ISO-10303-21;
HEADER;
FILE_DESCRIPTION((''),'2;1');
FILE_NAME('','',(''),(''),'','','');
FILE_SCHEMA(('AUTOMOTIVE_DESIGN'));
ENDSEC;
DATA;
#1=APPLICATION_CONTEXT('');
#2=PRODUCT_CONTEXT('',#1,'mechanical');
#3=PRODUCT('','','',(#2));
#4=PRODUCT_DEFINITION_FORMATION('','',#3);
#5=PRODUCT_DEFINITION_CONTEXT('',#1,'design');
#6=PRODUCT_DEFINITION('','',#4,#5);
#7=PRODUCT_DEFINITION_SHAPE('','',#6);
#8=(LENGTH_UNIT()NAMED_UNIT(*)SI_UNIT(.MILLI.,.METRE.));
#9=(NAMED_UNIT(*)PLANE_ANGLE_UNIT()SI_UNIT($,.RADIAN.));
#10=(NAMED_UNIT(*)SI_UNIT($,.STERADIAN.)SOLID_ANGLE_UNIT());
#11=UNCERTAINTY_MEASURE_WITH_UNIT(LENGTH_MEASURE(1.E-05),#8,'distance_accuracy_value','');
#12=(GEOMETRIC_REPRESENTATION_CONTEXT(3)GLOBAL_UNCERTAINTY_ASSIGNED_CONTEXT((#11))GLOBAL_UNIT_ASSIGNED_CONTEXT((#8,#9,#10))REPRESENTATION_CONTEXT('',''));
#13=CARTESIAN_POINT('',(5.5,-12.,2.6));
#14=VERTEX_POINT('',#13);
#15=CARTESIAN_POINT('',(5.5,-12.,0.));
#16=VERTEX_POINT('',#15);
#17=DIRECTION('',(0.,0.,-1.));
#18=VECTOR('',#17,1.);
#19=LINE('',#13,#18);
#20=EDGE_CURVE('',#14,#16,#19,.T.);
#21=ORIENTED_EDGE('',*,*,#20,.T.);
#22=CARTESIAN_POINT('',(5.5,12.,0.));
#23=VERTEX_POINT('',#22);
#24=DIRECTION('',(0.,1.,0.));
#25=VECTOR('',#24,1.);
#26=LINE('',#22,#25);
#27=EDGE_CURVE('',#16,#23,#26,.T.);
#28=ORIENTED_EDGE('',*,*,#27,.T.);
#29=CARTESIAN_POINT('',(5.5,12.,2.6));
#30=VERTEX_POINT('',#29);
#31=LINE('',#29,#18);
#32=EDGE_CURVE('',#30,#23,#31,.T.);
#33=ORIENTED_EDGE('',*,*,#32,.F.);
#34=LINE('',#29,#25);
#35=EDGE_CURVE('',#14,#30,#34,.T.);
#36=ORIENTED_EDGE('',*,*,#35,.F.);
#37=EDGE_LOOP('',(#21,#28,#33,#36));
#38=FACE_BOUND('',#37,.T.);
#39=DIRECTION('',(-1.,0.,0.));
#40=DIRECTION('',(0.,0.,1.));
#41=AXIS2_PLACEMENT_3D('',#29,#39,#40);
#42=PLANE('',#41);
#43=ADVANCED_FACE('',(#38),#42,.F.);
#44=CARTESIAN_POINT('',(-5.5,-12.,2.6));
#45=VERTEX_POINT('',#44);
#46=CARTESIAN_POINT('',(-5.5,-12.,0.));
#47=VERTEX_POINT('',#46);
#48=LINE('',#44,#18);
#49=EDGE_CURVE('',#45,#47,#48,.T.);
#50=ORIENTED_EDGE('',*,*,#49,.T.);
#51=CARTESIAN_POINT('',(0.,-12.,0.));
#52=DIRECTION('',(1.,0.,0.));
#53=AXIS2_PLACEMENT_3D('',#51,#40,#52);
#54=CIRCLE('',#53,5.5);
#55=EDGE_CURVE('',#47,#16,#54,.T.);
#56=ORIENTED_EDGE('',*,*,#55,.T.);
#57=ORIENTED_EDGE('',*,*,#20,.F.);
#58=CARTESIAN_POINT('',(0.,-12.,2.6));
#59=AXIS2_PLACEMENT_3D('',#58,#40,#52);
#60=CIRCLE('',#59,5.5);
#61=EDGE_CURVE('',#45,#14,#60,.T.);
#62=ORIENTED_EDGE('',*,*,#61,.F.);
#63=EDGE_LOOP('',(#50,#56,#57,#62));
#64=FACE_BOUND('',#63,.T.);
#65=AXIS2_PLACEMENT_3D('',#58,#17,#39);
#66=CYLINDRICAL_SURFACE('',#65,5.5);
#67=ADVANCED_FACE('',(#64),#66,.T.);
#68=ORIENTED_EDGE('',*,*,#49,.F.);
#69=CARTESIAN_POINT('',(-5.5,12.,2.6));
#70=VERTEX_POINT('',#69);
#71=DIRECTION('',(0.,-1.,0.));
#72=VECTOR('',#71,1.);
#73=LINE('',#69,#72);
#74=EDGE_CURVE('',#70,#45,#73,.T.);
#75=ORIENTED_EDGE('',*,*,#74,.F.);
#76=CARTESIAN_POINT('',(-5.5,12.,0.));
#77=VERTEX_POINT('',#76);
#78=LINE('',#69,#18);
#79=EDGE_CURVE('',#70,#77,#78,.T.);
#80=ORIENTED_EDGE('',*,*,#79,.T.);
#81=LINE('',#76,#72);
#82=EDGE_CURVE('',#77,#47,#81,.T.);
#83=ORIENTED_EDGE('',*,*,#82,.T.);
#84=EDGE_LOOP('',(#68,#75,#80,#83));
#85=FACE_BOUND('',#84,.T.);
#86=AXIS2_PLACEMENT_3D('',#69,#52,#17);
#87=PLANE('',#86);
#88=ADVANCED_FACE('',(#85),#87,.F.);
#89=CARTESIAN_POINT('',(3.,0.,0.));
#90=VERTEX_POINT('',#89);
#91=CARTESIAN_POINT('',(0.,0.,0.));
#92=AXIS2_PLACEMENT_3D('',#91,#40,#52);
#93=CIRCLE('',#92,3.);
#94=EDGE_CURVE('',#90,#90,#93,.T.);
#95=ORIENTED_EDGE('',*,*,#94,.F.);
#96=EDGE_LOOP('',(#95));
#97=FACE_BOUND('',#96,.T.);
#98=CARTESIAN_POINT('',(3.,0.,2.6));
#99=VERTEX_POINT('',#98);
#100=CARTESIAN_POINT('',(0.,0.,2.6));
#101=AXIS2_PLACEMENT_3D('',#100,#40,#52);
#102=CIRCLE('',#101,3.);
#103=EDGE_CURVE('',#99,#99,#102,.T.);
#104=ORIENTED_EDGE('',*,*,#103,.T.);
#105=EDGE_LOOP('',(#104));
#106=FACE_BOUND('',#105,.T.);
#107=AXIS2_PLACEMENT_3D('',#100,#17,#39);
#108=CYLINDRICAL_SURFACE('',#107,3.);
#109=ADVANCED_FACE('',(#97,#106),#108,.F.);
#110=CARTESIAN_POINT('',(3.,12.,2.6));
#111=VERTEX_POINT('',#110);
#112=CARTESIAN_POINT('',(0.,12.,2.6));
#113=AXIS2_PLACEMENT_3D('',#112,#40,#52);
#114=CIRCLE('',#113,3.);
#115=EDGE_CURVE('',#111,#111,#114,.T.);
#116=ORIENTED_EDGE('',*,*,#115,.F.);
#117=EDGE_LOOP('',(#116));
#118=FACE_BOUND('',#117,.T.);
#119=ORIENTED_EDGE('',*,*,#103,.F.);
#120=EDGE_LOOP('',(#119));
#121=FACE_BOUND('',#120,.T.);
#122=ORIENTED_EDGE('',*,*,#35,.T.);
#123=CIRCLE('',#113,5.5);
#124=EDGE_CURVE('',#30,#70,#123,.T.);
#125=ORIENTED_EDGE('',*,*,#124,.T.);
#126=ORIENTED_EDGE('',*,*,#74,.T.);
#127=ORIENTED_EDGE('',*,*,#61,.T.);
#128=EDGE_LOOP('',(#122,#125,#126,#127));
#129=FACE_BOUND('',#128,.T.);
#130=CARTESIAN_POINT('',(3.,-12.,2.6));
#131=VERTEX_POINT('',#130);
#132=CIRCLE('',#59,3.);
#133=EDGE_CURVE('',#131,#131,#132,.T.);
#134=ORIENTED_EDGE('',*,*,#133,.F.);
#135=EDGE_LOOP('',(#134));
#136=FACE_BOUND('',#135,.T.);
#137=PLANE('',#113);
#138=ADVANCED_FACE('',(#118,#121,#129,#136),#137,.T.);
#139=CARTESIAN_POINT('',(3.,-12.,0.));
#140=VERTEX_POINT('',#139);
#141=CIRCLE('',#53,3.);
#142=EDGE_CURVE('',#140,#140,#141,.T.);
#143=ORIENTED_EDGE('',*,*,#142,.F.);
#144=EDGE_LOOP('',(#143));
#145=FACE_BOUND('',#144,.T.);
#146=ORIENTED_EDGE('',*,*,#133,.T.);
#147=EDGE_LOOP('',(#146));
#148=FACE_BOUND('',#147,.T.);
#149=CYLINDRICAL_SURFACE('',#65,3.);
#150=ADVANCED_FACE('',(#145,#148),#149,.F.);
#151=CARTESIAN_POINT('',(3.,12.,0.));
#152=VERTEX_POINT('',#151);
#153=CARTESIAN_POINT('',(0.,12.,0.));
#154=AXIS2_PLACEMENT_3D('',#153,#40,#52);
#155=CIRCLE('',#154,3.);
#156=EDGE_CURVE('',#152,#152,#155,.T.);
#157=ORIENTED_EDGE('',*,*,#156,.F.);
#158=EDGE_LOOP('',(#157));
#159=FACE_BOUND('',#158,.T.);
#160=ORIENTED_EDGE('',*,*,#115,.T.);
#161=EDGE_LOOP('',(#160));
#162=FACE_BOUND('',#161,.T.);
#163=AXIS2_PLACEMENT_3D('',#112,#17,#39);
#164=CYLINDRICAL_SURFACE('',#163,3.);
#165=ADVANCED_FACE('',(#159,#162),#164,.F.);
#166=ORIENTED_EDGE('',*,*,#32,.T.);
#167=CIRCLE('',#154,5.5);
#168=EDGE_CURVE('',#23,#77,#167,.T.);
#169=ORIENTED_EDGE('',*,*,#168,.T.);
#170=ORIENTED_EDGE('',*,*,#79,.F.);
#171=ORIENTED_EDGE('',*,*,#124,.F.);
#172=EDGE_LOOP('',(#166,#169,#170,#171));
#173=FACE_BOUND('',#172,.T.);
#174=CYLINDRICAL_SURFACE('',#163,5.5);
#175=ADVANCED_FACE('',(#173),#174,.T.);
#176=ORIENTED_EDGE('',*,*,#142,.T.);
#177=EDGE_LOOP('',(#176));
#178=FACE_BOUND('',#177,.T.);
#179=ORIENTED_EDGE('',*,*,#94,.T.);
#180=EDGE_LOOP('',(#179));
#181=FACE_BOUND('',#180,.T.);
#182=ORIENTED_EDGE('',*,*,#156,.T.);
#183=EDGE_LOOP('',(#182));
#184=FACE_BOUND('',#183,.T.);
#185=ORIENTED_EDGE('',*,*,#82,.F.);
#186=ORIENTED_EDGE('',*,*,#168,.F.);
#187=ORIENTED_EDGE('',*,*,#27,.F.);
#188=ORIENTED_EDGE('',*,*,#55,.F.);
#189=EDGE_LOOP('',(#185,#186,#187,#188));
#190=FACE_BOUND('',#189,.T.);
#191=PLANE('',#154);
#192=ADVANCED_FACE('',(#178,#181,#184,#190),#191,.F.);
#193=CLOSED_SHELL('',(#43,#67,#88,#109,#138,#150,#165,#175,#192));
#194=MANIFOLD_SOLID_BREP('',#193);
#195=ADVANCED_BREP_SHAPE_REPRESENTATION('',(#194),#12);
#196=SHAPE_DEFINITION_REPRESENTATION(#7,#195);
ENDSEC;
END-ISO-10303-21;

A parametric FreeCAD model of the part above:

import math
import FreeCAD as App
import Part
import Sketcher

V = App.Vector

doc = App.newDocument("Part")
params = doc.addObject("Spreadsheet::Sheet", "Params")
for row, (alias, value) in enumerate([
    ("sketch1_diameter", "6 mm"),
    ("sketch1_radius", "5.5 mm"),
    ("sketch1_height", "24 mm"),
    ("pad1_length", "2.6 mm"),
], start=1):
    params.set(f"A{row}", alias)
    params.set(f"B{row}", "=" + value)
    params.setAlias(f"B{row}", alias)

body = doc.addObject("PartDesign::Body", "Body")

# Sketch on XY plane
sketch1 = body.newObject("Sketcher::SketchObject", "Sketch")
sketch1.AttachmentSupport = (doc.getObject("XY_Plane"), [""])
sketch1.MapMode = "FlatFace"
sketch1.addGeometry(Part.LineSegment(V(5.5, -12, 0), V(5.5, 12, 0)), False)
sketch1.addGeometry(Part.ArcOfCircle(Part.Circle(V(0, 12, 0), V(0, 0, 1), 5.5), math.radians(0), math.radians(180)), False)
sketch1.addGeometry(Part.LineSegment(V(-5.5, 12, 0), V(-5.5, -12, 0)), False)
sketch1.addGeometry(Part.ArcOfCircle(Part.Circle(V(0, -12, 0), V(0, 0, 1), 5.5), math.radians(180), math.radians(360)), False)
sketch1.addGeometry(Part.Circle(V(0, -12, 0), V(0, 0, 1), 3), False)
sketch1.addGeometry(Part.Circle(V(0, 0, 0), V(0, 0, 1), 3), False)
sketch1.addGeometry(Part.Circle(V(0, 12, 0), V(0, 0, 1), 3), False)
sketch1.addConstraint(Sketcher.Constraint("Tangent", 0, 2, 1, 1))
sketch1.addConstraint(Sketcher.Constraint("Tangent", 1, 2, 2, 1))
sketch1.addConstraint(Sketcher.Constraint("Tangent", 2, 2, 3, 1))
sketch1.addConstraint(Sketcher.Constraint("Tangent", 3, 2, 0, 1))
sketch1.addConstraint(Sketcher.Constraint("Vertical", 0))
sketch1.addConstraint(Sketcher.Constraint("Vertical", 2))
sketch1.addConstraint(Sketcher.Constraint("Coincident", 5, 3, -1, 1))
sketch1.addConstraint(Sketcher.Constraint("Coincident", 4, 3, 3, 3))
sketch1.addConstraint(Sketcher.Constraint("Coincident", 6, 3, 1, 3))
sketch1.addConstraint(Sketcher.Constraint("Equal", 4, 5))
sketch1.addConstraint(Sketcher.Constraint("Equal", 5, 6))
sketch1.addConstraint(Sketcher.Constraint("Symmetric", 1, 3, 3, 3, -1, 1))
sketch1.addConstraint(Sketcher.Constraint("Diameter", 4, 6.0))
sketch1.addConstraint(Sketcher.Constraint("Radius", 1, 5.5))
sketch1.addConstraint(Sketcher.Constraint("DistanceY", 0, 1, 0, 2, 24.0))
sketch1.setExpression("Constraints[12]", "Params.sketch1_diameter")
sketch1.setExpression("Constraints[13]", "Params.sketch1_radius")
sketch1.setExpression("Constraints[14]", "Params.sketch1_height")
pad1 = body.newObject("PartDesign::Pad", "Pad")
pad1.Profile = sketch1
pad1.setExpression("Length", "Params.pad1_length")

doc.recompute()
